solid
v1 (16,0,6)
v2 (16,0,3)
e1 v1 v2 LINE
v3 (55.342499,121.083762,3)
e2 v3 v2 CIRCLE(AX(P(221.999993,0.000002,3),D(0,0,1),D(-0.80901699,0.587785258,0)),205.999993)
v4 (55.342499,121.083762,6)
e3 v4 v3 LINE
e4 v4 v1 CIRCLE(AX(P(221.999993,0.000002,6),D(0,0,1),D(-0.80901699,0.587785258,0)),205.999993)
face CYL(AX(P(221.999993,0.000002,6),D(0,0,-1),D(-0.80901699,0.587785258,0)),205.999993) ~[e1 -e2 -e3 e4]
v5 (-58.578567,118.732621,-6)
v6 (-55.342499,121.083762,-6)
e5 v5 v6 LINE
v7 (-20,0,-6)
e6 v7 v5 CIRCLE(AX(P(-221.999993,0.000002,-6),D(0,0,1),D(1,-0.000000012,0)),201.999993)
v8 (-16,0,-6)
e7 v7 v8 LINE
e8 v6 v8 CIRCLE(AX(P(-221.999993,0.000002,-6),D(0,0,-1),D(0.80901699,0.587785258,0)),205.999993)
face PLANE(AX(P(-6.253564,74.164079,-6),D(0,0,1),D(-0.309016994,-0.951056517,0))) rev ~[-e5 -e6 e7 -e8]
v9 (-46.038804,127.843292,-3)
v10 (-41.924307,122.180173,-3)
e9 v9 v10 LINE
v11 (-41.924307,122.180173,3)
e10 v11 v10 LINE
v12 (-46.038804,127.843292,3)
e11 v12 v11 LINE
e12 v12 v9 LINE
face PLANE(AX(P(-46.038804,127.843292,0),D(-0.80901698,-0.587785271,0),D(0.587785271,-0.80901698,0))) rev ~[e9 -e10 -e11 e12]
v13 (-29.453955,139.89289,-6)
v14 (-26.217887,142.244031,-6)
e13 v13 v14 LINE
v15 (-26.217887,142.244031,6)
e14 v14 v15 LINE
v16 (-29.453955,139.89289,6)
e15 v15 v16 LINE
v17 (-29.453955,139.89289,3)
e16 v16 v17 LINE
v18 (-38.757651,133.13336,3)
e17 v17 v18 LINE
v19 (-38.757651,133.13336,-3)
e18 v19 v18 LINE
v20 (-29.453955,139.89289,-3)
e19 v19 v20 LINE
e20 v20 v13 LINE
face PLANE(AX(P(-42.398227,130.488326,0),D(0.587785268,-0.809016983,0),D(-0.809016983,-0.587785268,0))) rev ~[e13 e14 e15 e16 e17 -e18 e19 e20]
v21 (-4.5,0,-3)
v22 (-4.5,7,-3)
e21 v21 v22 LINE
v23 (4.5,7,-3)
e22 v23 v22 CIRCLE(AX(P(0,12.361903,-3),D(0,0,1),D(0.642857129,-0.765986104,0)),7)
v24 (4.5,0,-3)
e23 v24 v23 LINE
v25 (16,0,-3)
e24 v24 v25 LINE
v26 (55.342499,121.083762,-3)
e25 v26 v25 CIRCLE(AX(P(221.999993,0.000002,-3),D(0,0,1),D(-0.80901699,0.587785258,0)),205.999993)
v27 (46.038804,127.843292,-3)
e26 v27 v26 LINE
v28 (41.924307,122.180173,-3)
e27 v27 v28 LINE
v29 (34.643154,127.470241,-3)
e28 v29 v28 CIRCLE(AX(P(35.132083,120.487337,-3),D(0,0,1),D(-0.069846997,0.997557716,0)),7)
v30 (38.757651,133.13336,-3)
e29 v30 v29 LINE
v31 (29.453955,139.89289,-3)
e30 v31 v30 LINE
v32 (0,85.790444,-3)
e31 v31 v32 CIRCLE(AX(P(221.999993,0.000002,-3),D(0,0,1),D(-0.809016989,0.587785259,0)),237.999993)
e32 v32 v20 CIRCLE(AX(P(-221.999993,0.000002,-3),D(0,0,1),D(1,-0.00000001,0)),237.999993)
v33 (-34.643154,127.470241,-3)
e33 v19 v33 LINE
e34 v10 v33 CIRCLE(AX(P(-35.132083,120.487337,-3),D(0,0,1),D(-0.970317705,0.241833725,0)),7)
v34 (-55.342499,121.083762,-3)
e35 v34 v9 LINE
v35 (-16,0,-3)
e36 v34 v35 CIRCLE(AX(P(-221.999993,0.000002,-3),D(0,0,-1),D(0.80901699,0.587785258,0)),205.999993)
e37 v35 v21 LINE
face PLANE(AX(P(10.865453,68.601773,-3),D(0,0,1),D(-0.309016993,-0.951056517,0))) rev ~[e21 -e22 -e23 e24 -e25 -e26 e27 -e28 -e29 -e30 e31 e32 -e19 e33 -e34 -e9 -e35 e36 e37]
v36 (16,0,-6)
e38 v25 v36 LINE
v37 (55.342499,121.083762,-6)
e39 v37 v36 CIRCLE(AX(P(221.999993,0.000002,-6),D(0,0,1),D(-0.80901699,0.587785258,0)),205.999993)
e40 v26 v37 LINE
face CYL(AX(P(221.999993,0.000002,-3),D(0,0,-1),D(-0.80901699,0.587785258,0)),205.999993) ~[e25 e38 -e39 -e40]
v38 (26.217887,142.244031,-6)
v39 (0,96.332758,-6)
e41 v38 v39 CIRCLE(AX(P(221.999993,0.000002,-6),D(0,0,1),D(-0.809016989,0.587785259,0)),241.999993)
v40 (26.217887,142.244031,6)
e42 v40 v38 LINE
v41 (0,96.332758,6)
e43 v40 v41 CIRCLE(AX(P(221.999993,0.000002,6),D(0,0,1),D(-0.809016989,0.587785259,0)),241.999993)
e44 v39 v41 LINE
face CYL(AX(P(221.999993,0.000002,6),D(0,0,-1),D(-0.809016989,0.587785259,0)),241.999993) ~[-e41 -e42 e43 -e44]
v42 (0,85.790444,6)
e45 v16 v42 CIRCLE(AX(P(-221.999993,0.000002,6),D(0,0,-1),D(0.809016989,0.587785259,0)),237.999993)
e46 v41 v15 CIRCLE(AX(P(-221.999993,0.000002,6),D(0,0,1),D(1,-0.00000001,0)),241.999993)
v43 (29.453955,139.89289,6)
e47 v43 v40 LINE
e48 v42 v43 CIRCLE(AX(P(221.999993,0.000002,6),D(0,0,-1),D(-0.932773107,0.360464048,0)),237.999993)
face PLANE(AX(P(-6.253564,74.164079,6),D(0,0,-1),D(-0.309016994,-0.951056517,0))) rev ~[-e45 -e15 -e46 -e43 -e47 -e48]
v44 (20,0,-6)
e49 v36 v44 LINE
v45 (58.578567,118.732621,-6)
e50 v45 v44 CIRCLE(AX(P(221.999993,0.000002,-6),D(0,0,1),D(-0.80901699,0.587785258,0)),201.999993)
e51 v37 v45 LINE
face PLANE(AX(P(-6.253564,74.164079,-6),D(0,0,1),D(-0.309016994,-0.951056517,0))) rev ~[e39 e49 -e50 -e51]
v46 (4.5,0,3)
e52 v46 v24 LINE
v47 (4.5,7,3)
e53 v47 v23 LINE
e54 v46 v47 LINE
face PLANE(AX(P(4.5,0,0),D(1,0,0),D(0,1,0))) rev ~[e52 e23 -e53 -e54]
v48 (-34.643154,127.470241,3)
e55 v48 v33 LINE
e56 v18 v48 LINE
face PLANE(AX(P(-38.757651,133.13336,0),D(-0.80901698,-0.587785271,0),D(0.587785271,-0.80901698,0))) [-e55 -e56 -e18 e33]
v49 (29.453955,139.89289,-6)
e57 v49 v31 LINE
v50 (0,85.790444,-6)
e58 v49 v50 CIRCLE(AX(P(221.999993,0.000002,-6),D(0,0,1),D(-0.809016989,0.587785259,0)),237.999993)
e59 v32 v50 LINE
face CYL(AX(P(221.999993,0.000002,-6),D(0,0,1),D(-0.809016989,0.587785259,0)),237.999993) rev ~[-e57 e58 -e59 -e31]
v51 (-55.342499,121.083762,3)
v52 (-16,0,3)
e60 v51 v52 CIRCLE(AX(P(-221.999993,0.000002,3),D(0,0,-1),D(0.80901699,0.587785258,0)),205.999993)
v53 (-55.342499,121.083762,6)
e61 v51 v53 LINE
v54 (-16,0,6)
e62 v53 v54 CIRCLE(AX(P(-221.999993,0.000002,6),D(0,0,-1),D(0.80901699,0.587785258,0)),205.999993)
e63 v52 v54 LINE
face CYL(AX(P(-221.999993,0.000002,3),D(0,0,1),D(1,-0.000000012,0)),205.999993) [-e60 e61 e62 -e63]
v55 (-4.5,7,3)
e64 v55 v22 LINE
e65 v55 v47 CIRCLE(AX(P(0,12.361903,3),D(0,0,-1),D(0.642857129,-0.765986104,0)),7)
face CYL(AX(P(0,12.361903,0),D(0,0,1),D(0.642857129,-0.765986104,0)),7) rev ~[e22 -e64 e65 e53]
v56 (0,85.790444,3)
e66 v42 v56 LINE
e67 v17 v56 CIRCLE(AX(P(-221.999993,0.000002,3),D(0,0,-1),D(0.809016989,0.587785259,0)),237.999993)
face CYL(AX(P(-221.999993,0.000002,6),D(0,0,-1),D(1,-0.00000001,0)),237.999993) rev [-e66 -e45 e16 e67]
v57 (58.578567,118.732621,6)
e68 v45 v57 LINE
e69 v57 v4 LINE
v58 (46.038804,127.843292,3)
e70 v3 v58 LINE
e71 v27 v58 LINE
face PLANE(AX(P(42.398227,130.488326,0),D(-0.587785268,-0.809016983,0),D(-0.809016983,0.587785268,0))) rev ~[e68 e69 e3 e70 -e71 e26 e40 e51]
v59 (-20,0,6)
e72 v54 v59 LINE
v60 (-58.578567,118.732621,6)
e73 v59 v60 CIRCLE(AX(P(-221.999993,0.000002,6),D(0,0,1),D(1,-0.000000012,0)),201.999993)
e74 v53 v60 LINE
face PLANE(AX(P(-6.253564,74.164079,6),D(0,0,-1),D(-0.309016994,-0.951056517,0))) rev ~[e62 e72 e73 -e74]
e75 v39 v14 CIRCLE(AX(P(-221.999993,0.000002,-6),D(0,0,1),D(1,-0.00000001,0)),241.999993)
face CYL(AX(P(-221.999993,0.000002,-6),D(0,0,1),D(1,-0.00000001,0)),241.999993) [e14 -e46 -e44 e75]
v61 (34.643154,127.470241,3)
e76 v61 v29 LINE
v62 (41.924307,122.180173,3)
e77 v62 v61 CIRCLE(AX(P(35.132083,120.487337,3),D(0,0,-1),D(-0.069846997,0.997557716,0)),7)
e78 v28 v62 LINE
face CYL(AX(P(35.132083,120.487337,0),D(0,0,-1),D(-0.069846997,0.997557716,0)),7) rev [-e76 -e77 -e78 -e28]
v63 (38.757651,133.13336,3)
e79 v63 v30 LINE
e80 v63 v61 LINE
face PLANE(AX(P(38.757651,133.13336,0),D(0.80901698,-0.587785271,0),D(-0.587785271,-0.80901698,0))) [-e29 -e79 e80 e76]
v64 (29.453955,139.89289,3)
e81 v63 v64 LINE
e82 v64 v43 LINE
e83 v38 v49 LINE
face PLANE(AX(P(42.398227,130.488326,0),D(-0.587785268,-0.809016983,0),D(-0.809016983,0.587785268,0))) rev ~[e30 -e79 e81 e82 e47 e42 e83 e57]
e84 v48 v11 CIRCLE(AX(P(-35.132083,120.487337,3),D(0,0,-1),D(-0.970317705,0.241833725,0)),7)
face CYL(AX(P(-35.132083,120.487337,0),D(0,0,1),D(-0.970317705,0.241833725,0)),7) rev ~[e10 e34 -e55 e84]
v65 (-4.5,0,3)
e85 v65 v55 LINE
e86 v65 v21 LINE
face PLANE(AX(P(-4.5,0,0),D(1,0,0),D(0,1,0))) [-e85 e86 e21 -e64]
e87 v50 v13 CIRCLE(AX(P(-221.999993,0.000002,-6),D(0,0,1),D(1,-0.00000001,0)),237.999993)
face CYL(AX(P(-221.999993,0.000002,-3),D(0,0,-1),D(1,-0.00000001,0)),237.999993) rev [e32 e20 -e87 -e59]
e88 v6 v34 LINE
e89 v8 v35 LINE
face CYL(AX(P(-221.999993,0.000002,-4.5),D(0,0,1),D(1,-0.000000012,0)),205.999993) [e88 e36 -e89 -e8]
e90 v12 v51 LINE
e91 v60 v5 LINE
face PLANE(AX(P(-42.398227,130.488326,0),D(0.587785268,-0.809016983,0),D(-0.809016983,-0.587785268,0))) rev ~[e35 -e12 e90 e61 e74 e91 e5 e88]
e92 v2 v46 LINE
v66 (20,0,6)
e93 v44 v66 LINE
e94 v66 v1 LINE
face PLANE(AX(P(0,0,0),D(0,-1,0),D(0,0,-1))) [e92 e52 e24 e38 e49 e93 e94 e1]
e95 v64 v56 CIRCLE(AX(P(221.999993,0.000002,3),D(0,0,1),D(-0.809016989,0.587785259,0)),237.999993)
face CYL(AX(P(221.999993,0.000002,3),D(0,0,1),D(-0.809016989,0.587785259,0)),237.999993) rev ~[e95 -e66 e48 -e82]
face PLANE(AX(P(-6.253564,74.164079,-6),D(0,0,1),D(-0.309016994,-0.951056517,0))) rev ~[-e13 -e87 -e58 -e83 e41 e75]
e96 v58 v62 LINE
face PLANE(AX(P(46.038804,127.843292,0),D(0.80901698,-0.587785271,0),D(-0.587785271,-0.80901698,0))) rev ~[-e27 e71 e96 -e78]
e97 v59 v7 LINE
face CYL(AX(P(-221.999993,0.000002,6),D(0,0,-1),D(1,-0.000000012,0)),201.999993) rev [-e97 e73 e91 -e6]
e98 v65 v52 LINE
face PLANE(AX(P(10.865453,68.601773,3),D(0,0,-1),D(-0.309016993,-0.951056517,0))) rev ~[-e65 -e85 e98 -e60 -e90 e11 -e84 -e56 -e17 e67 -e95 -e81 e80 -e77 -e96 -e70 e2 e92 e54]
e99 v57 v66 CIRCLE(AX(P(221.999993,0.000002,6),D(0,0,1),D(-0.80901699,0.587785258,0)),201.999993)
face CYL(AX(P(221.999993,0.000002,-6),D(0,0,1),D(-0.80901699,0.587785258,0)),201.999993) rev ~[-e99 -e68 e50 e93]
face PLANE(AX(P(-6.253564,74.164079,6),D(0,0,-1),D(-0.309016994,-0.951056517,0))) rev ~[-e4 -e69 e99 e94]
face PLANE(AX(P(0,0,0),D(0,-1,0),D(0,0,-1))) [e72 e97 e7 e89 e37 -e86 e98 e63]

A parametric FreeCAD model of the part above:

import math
import FreeCAD as App
import Part
import Sketcher
from FreeCAD import Vector
Q = App.Units.Quantity

doc = App.newDocument("Part")
body = doc.addObject("PartDesign::Body", "Body")

# Sketch on XZ plane
sketch1 = body.newObject("Sketcher::SketchObject", "Sketch")
sketch1.AttachmentSupport = (doc.getObject("XZ_Plane"), [""])
sketch1.MapMode = "FlatFace"
sketch1.addGeometry([
    Part.LineSegment(Vector(-20, 6, 0), Vector(-20, -6, 0)),  # 0
    Part.LineSegment(Vector(-20, -6, 0), Vector(-16, -6, 0)),  # 1
    Part.LineSegment(Vector(-16, -6, 0), Vector(-16, -3, 0)),  # 2
    Part.LineSegment(Vector(-16, -3, 0), Vector(16, -3, 0)),  # 3
    Part.LineSegment(Vector(16, -3, 0), Vector(16, -6, 0)),  # 4
    Part.LineSegment(Vector(16, -6, 0), Vector(20, -6, 0)),  # 5
    Part.LineSegment(Vector(20, -6, 0), Vector(20, 6, 0)),  # 6
    Part.LineSegment(Vector(20, 6, 0), Vector(16, 6, 0)),  # 7
    Part.LineSegment(Vector(16, 6, 0), Vector(16, 3, 0)),  # 8
    Part.LineSegment(Vector(16, 3, 0), Vector(-16, 3, 0)),  # 9
    Part.LineSegment(Vector(-16, 3, 0), Vector(-16, 6, 0)),  # 10
    Part.LineSegment(Vector(-16, 6, 0), Vector(-20, 6, 0)),  # 11
], False)
sketch1.addConstraint([
    Sketcher.Constraint("Coincident", 0, 2, 1, 1),
    Sketcher.Constraint("Coincident", 1, 2, 2, 1),
    Sketcher.Constraint("Coincident", 2, 2, 3, 1),
    Sketcher.Constraint("Coincident", 3, 2, 4, 1),
    Sketcher.Constraint("Coincident", 4, 2, 5, 1),
    Sketcher.Constraint("Coincident", 5, 2, 6, 1),
    Sketcher.Constraint("Coincident", 6, 2, 7, 1),
    Sketcher.Constraint("Coincident", 7, 2, 8, 1),
    Sketcher.Constraint("Coincident", 8, 2, 9, 1),
    Sketcher.Constraint("Coincident", 9, 2, 10, 1),
    Sketcher.Constraint("Coincident", 10, 2, 11, 1),
    Sketcher.Constraint("Coincident", 11, 2, 0, 1),
    Sketcher.Constraint("Vertical", 0),
    Sketcher.Constraint("Horizontal", 1),
    Sketcher.Constraint("Vertical", 2),
    Sketcher.Constraint("Horizontal", 3),
    Sketcher.Constraint("Vertical", 4),
    Sketcher.Constraint("Horizontal", 5),
    Sketcher.Constraint("Vertical", 6),
    Sketcher.Constraint("Horizontal", 7),
    Sketcher.Constraint("Vertical", 8),
    Sketcher.Constraint("Horizontal", 9),
    Sketcher.Constraint("Vertical", 10),
    Sketcher.Constraint("Horizontal", 11),
    Sketcher.Constraint("Symmetric", 0, 2, 6, 2, -1, 1),
    Sketcher.Constraint("Symmetric", 2, 2, 8, 2, -1, 1),
    Sketcher.Constraint("Symmetric", 4, 2, 10, 2, -1, 1),
    Sketcher.Constraint("Symmetric", 1, 2, 4, 2, -2),
    Sketcher.Constraint("DistanceX", 1, 1, 1, 2, 4.0),
    Sketcher.Constraint("DistanceX", 3, 1, 3, 2, 32.0),
    Sketcher.Constraint("DistanceY", 0, 2, 0, 1, 12.0),
    Sketcher.Constraint("DistanceY", 2, 1, 2, 2, 3.0),
])

# Sketch on XY plane
sketch2 = body.newObject("Sketcher::SketchObject", "Sketch001")
sketch2.AttachmentSupport = (doc.getObject("XY_Plane"), [""])
sketch2.MapMode = "FlatFace"
sketch2.addGeometry(Part.ArcOfCircle(Part.Circle(Vector(-222, 0, 0), Vector(0, 0, 1), 222), math.radians(0), math.radians(36)), False)
sketch2.addConstraint([
    Sketcher.Constraint("Coincident", 0, 1, -1, 1),
    Sketcher.Constraint("Radius", 0, 221.999993),
    Sketcher.Constraint("DistanceX", 0, 2, -1, 1, 42.398227),
    Sketcher.Constraint("DistanceY", -1, 1, 0, 2, 130.488326),
])
doc.recompute()

additivepipe = body.newObject("PartDesign::AdditivePipe", "AdditivePipe")
additivepipe.Profile = sketch1
additivepipe.Spine = (sketch2, ["Edge1"])

# Sketch on XZ plane
sketch3 = body.newObject("Sketcher::SketchObject", "Sketch002")
sketch3.AttachmentSupport = (doc.getObject("XZ_Plane"), [""])
sketch3.MapMode = "FlatFace"
sketch3.addGeometry([
    Part.LineSegment(Vector(-20, 6, 0), Vector(-20, -6, 0)),  # 0
    Part.LineSegment(Vector(-20, -6, 0), Vector(-16, -6, 0)),  # 1
    Part.LineSegment(Vector(-16, -6, 0), Vector(-16, -3, 0)),  # 2
    Part.LineSegment(Vector(-16, -3, 0), Vector(16, -3, 0)),  # 3
    Part.LineSegment(Vector(16, -3, 0), Vector(16, -6, 0)),  # 4
    Part.LineSegment(Vector(16, -6, 0), Vector(20, -6, 0)),  # 5
    Part.LineSegment(Vector(20, -6, 0), Vector(20, 6, 0)),  # 6
    Part.LineSegment(Vector(20, 6, 0), Vector(16, 6, 0)),  # 7
    Part.LineSegment(Vector(16, 6, 0), Vector(16, 3, 0)),  # 8
    Part.LineSegment(Vector(16, 3, 0), Vector(-16, 3, 0)),  # 9
    Part.LineSegment(Vector(-16, 3, 0), Vector(-16, 6, 0)),  # 10
    Part.LineSegment(Vector(-16, 6, 0), Vector(-20, 6, 0)),  # 11
], False)
sketch3.addConstraint([
    Sketcher.Constraint("Coincident", 0, 2, 1, 1),
    Sketcher.Constraint("Coincident", 1, 2, 2, 1),
    Sketcher.Constraint("Coincident", 2, 2, 3, 1),
    Sketcher.Constraint("Coincident", 3, 2, 4, 1),
    Sketcher.Constraint("Coincident", 4, 2, 5, 1),
    Sketcher.Constraint("Coincident", 5, 2, 6, 1),
    Sketcher.Constraint("Coincident", 6, 2, 7, 1),
    Sketcher.Constraint("Coincident", 7, 2, 8, 1),
    Sketcher.Constraint("Coincident", 8, 2, 9, 1),
    Sketcher.Constraint("Coincident", 9, 2, 10, 1),
    Sketcher.Constraint("Coincident", 10, 2, 11, 1),
    Sketcher.Constraint("Coincident", 11, 2, 0, 1),
    Sketcher.Constraint("Vertical", 0),
    Sketcher.Constraint("Horizontal", 1),
    Sketcher.Constraint("Vertical", 2),
    Sketcher.Constraint("Horizontal", 3),
    Sketcher.Constraint("Vertical", 4),
    Sketcher.Constraint("Horizontal", 5),
    Sketcher.Constraint("Vertical", 6),
    Sketcher.Constraint("Horizontal", 7),
    Sketcher.Constraint("Vertical", 8),
    Sketcher.Constraint("Horizontal", 9),
    Sketcher.Constraint("Vertical", 10),
    Sketcher.Constraint("Horizontal", 11),
    Sketcher.Constraint("Symmetric", 0, 2, 6, 2, -1, 1),
    Sketcher.Constraint("Symmetric", 2, 2, 8, 2, -1, 1),
    Sketcher.Constraint("Symmetric", 4, 2, 10, 2, -1, 1),
    Sketcher.Constraint("Symmetric", 1, 2, 4, 2, -2),
    Sketcher.Constraint("DistanceX", 1, 1, 1, 2, 4.0),
    Sketcher.Constraint("DistanceX", 3, 1, 3, 2, 32.0),
    Sketcher.Constraint("DistanceY", 0, 2, 0, 1, 12.0),
    Sketcher.Constraint("DistanceY", 2, 1, 2, 2, 3.0),
])

# Sketch on XY plane
sketch4 = body.newObject("Sketcher::SketchObject", "Sketch003")
sketch4.AttachmentSupport = (doc.getObject("XY_Plane"), [""])
sketch4.MapMode = "FlatFace"
sketch4.addGeometry(Part.ArcOfCircle(Part.Circle(Vector(222, 0, 0), Vector(0, 0, 1), 222), math.radians(144), math.radians(180)), False)
sketch4.addConstraint([
    Sketcher.Constraint("Coincident", 0, 2, -1, 1),
    Sketcher.Constraint("Radius", 0, 221.999993),
    Sketcher.Constraint("DistanceX", -1, 1, 0, 1, 42.398227),
    Sketcher.Constraint("DistanceY", -1, 1, 0, 1, 130.488326),
])
doc.recompute()

additivepipe2 = body.newObject("PartDesign::AdditivePipe", "AdditivePipe001")
additivepipe2.Profile = sketch3
additivepipe2.Spine = (sketch4, ["Edge1"])

# Sketch on XZ plane
sketch5 = body.newObject("Sketcher::SketchObject", "Sketch004")
sketch5.AttachmentSupport = (doc.getObject("XZ_Plane"), [""])
sketch5.MapMode = "FlatFace"
sketch5.addGeometry([
    Part.LineSegment(Vector(-16, 6, 0), Vector(-16, 3, 0)),
    Part.LineSegment(Vector(-16, 3, 0), Vector(16, 3, 0)),
    Part.LineSegment(Vector(16, 3, 0), Vector(16, 6, 0)),
    Part.LineSegment(Vector(16, 6, 0), Vector(-16, 6, 0)),
], False)
sketch5.addConstraint([
    Sketcher.Constraint("Coincident", 0, 2, 1, 1),
    Sketcher.Constraint("Coincident", 1, 2, 2, 1),
    Sketcher.Constraint("Coincident", 2, 2, 3, 1),
    Sketcher.Constraint("Coincident", 3, 2, 0, 1),
    Sketcher.Constraint("Vertical", 0),
    Sketcher.Constraint("Horizontal", 1),
    Sketcher.Constraint("Vertical", 2),
    Sketcher.Constraint("Horizontal", 3),
    Sketcher.Constraint("DistanceX", 1, 1, 1, 2, 32.0),
    Sketcher.Constraint("DistanceY", 0, 2, 0, 1, 3.0),
    Sketcher.Constraint("DistanceX", 0, 2, -1, 1, 16.0),
    Sketcher.Constraint("DistanceY", -1, 1, 0, 2, 3.0),
])

# Sketch on XY plane
sketch6 = body.newObject("Sketcher::SketchObject", "Sketch005")
sketch6.AttachmentSupport = (doc.getObject("XY_Plane"), [""])
sketch6.MapMode = "FlatFace"
sketch6.addGeometry(Part.ArcOfCircle(Part.Circle(Vector(-222, 0, 0), Vector(0, 0, 1), 222), math.radians(0), math.radians(36)), False)
sketch6.addConstraint([
    Sketcher.Constraint("Coincident", 0, 1, -1, 1),
    Sketcher.Constraint("Radius", 0, 221.999993),
    Sketcher.Constraint("DistanceX", 0, 2, -1, 1, 42.398227),
    Sketcher.Constraint("DistanceY", -1, 1, 0, 2, 130.488326),
])
doc.recompute()

subtractivepipe = body.newObject("PartDesign::SubtractivePipe", "SubtractivePipe")
subtractivepipe.Profile = sketch5
subtractivepipe.Spine = (sketch6, ["Edge1"])

# Sketch on XZ plane
sketch7 = body.newObject("Sketcher::SketchObject", "Sketch006")
sketch7.AttachmentSupport = (doc.getObject("XZ_Plane"), [""])
sketch7.MapMode = "FlatFace"
sketch7.addGeometry([
    Part.LineSegment(Vector(-16, 6, 0), Vector(-16, 3, 0)),
    Part.LineSegment(Vector(-16, 3, 0), Vector(16, 3, 0)),
    Part.LineSegment(Vector(16, 3, 0), Vector(16, 6, 0)),
    Part.LineSegment(Vector(16, 6, 0), Vector(-16, 6, 0)),
], False)
sketch7.addConstraint([
    Sketcher.Constraint("Coincident", 0, 2, 1, 1),
    Sketcher.Constraint("Coincident", 1, 2, 2, 1),
    Sketcher.Constraint("Coincident", 2, 2, 3, 1),
    Sketcher.Constraint("Coincident", 3, 2, 0, 1),
    Sketcher.Constraint("Vertical", 0),
    Sketcher.Constraint("Horizontal", 1),
    Sketcher.Constraint("Vertical", 2),
    Sketcher.Constraint("Horizontal", 3),
    Sketcher.Constraint("DistanceX", 1, 1, 1, 2, 32.0),
    Sketcher.Constraint("DistanceY", 0, 2, 0, 1, 3.0),
    Sketcher.Constraint("DistanceX", 0, 2, -1, 1, 16.0),
    Sketcher.Constraint("DistanceY", -1, 1, 0, 2, 3.0),
])

# Sketch on XY plane
sketch8 = body.newObject("Sketcher::SketchObject", "Sketch007")
sketch8.AttachmentSupport = (doc.getObject("XY_Plane"), [""])
sketch8.MapMode = "FlatFace"
sketch8.addGeometry(Part.ArcOfCircle(Part.Circle(Vector(222, 0, 0), Vector(0, 0, 1), 222), math.radians(144), math.radians(180)), False)
sketch8.addConstraint([
    Sketcher.Constraint("Coincident", 0, 2, -1, 1),
    Sketcher.Constraint("Radius", 0, 221.999993),
    Sketcher.Constraint("DistanceX", -1, 1, 0, 1, 42.398227),
    Sketcher.Constraint("DistanceY", -1, 1, 0, 1, 130.488326),
])
doc.recompute()

subtractivepipe2 = body.newObject("PartDesign::SubtractivePipe", "SubtractivePipe001")
subtractivepipe2.Profile = sketch7
subtractivepipe2.Spine = (sketch8, ["Edge1"])
doc.recompute()

mirrored = body.newObject("PartDesign::Mirrored", "Mirrored")
mirrored.Originals = [subtractivepipe]
mirrored.MirrorPlane = (doc.getObject("XY_Plane"), [""])
body.Tip = mirrored
doc.recompute()

mirrored2 = body.newObject("PartDesign::Mirrored", "Mirrored001")
mirrored2.Originals = [subtractivepipe2]
mirrored2.MirrorPlane = (doc.getObject("XY_Plane"), [""])
body.Tip = mirrored2

# Sketch on XY plane
sketch9 = body.newObject("Sketcher::SketchObject", "Sketch008")
sketch9.AttachmentSupport = (doc.getObject("XY_Plane"), [""])
sketch9.MapMode = "FlatFace"
sketch9.addGeometry([
    Part.LineSegment(Vector(-4, 0, 0), Vector(4, 0, 0)),
    Part.LineSegment(Vector(4, 0, 0), Vector(4, 7, 0)),
    Part.ArcOfCircle(Part.Circle(Vector(0, 12, 0), Vector(0, 0, 1), 7), math.radians(-50), math.radians(230)),
    Part.LineSegment(Vector(-4, 7, 0), Vector(-4, 0, 0)),
], False)
sketch9.addConstraint([
    Sketcher.Constraint("Coincident", 0, 2, 1, 1),
    Sketcher.Constraint("Coincident", 1, 2, 2, 1),
    Sketcher.Constraint("Coincident", 2, 2, 3, 1),
    Sketcher.Constraint("Coincident", 3, 2, 0, 1),
    Sketcher.Constraint("Horizontal", 0),
    Sketcher.Constraint("Vertical", 1),
    Sketcher.Constraint("Vertical", 3),
    Sketcher.Constraint("Symmetric", 0, 2, 3, 2, -1, 1),
    Sketcher.Constraint("PointOnObject", 2, 3, -2),
    Sketcher.Constraint("Radius", 2, 7.0),
    Sketcher.Constraint("DistanceX", 0, 1, 0, 2, 9.0),
    Sketcher.Constraint("DistanceY", 1, 1, 1, 2, 7.0),
])
pocket1 = body.newObject("PartDesign::Pocket", "Pocket")
pocket1.Profile = sketch9
pocket1.Type = "ThroughAll"
pocket1.Midplane = True

# Sketch on XY plane
sketch10 = body.newObject("Sketcher::SketchObject", "Sketch009")
sketch10.AttachmentSupport = (doc.getObject("XY_Plane"), [""])
sketch10.MapMode = "FlatFace"
sketch10.addGeometry([
    Part.LineSegment(Vector(-39, 133, 0), Vector(-46, 128, 0)),
    Part.LineSegment(Vector(-46, 128, 0), Vector(-42, 122, 0)),
    Part.ArcOfCircle(Part.Circle(Vector(-35, 120, 0), Vector(0, 0, 1), 7), math.radians(166), math.radians(446)),
    Part.LineSegment(Vector(-35, 127, 0), Vector(-39, 133, 0)),
], False)
sketch10.addConstraint([
    Sketcher.Constraint("Coincident", 0, 2, 1, 1),
    Sketcher.Constraint("Coincident", 1, 2, 2, 1),
    Sketcher.Constraint("Coincident", 2, 2, 3, 1),
    Sketcher.Constraint("Coincident", 3, 2, 0, 1),
    Sketcher.Constraint("Perpendicular", 0, 1),
    Sketcher.Constraint("Parallel", 1, 3),
    Sketcher.Constraint("Equal", 1, 3),
    Sketcher.Constraint("Radius", 2, 7.0),
    Sketcher.Constraint("Angle", 0, Q("-143.999996 deg")),
    Sketcher.Constraint("Distance", 0, 9.0),
    Sketcher.Constraint("Distance", 1, 7.0),
    Sketcher.Constraint("DistanceY", -1, 1, 2, 2, 127.470241),
    Sketcher.Constraint("DistanceX", 3, 2, -1, 1, 38.757651),
])
pocket2 = body.newObject("PartDesign::Pocket", "Pocket001")
pocket2.Profile = sketch10
pocket2.Type = "ThroughAll"
pocket2.Midplane = True

# Sketch on XY plane
sketch11 = body.newObject("Sketcher::SketchObject", "Sketch010")
sketch11.AttachmentSupport = (doc.getObject("XY_Plane"), [""])
sketch11.MapMode = "FlatFace"
sketch11.addGeometry([
    Part.LineSegment(Vector(46, 128, 0), Vector(39, 133, 0)),
    Part.LineSegment(Vector(39, 133, 0), Vector(35, 127, 0)),
    Part.ArcOfCircle(Part.Circle(Vector(35, 120, 0), Vector(0, 0, 1), 7), math.radians(94), math.radians(374)),
    Part.LineSegment(Vector(42, 122, 0), Vector(46, 128, 0)),
], False)
sketch11.addConstraint([
    Sketcher.Constraint("Coincident", 0, 2, 1, 1),
    Sketcher.Constraint("Coincident", 1, 2, 2, 1),
    Sketcher.Constraint("Coincident", 2, 2, 3, 1),
    Sketcher.Constraint("Coincident", 3, 2, 0, 1),
    Sketcher.Constraint("Perpendicular", 0, 1),
    Sketcher.Constraint("Parallel", 1, 3),
    Sketcher.Constraint("Equal", 1, 3),
    Sketcher.Constraint("Radius", 2, 7.0),
    Sketcher.Constraint("Angle", 0, Q("143.999996 deg")),
    Sketcher.Constraint("Distance", 0, 9.0),
    Sketcher.Constraint("Distance", 1, 7.0),
    Sketcher.Constraint("DistanceX", -1, 1, 0, 2, 38.757651),
    Sketcher.Constraint("DistanceY", -1, 1, 0, 2, 133.13336),
])
pocket3 = body.newObject("PartDesign::Pocket", "Pocket002")
pocket3.Profile = sketch11
pocket3.Type = "ThroughAll"
pocket3.Midplane = True

doc.recompute()
